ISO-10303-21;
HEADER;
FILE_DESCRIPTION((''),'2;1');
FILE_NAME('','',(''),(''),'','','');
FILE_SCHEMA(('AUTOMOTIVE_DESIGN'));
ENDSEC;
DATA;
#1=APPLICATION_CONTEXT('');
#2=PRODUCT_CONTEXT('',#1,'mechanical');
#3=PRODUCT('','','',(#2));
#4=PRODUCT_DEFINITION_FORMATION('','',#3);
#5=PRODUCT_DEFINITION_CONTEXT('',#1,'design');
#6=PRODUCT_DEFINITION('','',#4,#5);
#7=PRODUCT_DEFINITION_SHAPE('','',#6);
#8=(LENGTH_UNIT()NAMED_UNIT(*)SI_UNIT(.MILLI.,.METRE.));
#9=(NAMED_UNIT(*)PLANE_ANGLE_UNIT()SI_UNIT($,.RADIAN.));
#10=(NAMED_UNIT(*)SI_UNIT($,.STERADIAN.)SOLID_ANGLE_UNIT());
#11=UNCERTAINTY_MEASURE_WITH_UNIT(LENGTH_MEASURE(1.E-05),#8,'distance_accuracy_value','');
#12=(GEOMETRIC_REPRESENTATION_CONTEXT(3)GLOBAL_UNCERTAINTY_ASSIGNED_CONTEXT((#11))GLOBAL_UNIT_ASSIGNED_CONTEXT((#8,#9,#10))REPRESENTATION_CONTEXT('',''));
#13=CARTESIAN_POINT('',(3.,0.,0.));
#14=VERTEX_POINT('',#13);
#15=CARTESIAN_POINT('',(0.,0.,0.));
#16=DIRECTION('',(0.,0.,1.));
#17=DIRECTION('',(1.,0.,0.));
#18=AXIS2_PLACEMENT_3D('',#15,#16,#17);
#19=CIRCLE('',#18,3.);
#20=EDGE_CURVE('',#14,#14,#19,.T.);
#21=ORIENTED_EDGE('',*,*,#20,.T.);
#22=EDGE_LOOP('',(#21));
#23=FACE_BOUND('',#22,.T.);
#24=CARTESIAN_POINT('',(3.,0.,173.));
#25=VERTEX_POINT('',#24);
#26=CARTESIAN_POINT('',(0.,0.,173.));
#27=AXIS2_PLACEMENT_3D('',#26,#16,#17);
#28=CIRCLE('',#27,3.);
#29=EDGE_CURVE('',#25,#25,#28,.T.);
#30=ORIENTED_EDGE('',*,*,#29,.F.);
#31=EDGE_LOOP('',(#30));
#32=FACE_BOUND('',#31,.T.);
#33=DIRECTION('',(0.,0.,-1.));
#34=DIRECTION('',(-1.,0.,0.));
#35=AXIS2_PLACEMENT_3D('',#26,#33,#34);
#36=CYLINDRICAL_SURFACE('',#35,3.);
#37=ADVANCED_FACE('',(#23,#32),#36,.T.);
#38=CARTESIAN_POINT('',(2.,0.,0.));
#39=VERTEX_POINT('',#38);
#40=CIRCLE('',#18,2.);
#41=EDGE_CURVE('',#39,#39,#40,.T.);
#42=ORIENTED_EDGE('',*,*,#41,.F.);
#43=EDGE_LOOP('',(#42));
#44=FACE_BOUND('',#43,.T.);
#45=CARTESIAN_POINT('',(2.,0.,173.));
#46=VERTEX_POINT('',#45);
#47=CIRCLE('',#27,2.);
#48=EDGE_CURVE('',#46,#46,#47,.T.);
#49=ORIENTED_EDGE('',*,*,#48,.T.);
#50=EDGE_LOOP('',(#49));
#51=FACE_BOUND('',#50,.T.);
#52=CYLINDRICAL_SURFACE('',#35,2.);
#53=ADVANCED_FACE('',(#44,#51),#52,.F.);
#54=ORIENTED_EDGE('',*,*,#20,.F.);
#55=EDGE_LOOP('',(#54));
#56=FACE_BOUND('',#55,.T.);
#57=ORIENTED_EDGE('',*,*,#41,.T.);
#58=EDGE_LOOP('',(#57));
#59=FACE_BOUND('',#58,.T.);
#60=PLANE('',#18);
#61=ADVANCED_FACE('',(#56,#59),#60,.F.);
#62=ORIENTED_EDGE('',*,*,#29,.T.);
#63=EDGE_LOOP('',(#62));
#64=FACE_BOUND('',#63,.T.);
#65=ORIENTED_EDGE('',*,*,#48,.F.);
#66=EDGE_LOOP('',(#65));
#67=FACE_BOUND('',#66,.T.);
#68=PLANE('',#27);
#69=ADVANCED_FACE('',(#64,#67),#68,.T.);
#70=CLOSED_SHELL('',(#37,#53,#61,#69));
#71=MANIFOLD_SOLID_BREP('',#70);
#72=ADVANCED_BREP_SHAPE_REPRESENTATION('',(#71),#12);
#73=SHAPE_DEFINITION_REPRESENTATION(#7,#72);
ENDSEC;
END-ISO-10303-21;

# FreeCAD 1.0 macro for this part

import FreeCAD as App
import Part
import Sketcher
from FreeCAD import Vector
Q = App.Units.Quantity

doc = App.newDocument("Part")
body = doc.addObject("PartDesign::Body", "Body")

sketch1 = body.newObject("Sketcher::SketchObject", "Sketch")
sketch1.AttachmentSupport = (doc.getObject("XY_Plane"), [""])
sketch1.MapMode = "FlatFace"
sketch1.addGeometry(Part.Circle(Vector(0, 0, 0), Vector(0, 0, 1), 3), False)
sketch1.addGeometry(Part.Circle(Vector(0, 0, 0), Vector(0, 0, 1), 2), False)
sketch1.addConstraint(Sketcher.Constraint("Coincident", 0, 3, -1, 1))
sketch1.addConstraint(Sketcher.Constraint("Coincident", 1, 3, -1, 1))
sketch1.addConstraint(Sketcher.Constraint("Diameter", 0, Q("6 mm")))
sketch1.addConstraint(Sketcher.Constraint("Diameter", 1, Q("4 mm")))
pad1 = body.newObject("PartDesign::Pad", "Pad")
pad1.Profile = sketch1
pad1.Length = 173

doc.recompute()
